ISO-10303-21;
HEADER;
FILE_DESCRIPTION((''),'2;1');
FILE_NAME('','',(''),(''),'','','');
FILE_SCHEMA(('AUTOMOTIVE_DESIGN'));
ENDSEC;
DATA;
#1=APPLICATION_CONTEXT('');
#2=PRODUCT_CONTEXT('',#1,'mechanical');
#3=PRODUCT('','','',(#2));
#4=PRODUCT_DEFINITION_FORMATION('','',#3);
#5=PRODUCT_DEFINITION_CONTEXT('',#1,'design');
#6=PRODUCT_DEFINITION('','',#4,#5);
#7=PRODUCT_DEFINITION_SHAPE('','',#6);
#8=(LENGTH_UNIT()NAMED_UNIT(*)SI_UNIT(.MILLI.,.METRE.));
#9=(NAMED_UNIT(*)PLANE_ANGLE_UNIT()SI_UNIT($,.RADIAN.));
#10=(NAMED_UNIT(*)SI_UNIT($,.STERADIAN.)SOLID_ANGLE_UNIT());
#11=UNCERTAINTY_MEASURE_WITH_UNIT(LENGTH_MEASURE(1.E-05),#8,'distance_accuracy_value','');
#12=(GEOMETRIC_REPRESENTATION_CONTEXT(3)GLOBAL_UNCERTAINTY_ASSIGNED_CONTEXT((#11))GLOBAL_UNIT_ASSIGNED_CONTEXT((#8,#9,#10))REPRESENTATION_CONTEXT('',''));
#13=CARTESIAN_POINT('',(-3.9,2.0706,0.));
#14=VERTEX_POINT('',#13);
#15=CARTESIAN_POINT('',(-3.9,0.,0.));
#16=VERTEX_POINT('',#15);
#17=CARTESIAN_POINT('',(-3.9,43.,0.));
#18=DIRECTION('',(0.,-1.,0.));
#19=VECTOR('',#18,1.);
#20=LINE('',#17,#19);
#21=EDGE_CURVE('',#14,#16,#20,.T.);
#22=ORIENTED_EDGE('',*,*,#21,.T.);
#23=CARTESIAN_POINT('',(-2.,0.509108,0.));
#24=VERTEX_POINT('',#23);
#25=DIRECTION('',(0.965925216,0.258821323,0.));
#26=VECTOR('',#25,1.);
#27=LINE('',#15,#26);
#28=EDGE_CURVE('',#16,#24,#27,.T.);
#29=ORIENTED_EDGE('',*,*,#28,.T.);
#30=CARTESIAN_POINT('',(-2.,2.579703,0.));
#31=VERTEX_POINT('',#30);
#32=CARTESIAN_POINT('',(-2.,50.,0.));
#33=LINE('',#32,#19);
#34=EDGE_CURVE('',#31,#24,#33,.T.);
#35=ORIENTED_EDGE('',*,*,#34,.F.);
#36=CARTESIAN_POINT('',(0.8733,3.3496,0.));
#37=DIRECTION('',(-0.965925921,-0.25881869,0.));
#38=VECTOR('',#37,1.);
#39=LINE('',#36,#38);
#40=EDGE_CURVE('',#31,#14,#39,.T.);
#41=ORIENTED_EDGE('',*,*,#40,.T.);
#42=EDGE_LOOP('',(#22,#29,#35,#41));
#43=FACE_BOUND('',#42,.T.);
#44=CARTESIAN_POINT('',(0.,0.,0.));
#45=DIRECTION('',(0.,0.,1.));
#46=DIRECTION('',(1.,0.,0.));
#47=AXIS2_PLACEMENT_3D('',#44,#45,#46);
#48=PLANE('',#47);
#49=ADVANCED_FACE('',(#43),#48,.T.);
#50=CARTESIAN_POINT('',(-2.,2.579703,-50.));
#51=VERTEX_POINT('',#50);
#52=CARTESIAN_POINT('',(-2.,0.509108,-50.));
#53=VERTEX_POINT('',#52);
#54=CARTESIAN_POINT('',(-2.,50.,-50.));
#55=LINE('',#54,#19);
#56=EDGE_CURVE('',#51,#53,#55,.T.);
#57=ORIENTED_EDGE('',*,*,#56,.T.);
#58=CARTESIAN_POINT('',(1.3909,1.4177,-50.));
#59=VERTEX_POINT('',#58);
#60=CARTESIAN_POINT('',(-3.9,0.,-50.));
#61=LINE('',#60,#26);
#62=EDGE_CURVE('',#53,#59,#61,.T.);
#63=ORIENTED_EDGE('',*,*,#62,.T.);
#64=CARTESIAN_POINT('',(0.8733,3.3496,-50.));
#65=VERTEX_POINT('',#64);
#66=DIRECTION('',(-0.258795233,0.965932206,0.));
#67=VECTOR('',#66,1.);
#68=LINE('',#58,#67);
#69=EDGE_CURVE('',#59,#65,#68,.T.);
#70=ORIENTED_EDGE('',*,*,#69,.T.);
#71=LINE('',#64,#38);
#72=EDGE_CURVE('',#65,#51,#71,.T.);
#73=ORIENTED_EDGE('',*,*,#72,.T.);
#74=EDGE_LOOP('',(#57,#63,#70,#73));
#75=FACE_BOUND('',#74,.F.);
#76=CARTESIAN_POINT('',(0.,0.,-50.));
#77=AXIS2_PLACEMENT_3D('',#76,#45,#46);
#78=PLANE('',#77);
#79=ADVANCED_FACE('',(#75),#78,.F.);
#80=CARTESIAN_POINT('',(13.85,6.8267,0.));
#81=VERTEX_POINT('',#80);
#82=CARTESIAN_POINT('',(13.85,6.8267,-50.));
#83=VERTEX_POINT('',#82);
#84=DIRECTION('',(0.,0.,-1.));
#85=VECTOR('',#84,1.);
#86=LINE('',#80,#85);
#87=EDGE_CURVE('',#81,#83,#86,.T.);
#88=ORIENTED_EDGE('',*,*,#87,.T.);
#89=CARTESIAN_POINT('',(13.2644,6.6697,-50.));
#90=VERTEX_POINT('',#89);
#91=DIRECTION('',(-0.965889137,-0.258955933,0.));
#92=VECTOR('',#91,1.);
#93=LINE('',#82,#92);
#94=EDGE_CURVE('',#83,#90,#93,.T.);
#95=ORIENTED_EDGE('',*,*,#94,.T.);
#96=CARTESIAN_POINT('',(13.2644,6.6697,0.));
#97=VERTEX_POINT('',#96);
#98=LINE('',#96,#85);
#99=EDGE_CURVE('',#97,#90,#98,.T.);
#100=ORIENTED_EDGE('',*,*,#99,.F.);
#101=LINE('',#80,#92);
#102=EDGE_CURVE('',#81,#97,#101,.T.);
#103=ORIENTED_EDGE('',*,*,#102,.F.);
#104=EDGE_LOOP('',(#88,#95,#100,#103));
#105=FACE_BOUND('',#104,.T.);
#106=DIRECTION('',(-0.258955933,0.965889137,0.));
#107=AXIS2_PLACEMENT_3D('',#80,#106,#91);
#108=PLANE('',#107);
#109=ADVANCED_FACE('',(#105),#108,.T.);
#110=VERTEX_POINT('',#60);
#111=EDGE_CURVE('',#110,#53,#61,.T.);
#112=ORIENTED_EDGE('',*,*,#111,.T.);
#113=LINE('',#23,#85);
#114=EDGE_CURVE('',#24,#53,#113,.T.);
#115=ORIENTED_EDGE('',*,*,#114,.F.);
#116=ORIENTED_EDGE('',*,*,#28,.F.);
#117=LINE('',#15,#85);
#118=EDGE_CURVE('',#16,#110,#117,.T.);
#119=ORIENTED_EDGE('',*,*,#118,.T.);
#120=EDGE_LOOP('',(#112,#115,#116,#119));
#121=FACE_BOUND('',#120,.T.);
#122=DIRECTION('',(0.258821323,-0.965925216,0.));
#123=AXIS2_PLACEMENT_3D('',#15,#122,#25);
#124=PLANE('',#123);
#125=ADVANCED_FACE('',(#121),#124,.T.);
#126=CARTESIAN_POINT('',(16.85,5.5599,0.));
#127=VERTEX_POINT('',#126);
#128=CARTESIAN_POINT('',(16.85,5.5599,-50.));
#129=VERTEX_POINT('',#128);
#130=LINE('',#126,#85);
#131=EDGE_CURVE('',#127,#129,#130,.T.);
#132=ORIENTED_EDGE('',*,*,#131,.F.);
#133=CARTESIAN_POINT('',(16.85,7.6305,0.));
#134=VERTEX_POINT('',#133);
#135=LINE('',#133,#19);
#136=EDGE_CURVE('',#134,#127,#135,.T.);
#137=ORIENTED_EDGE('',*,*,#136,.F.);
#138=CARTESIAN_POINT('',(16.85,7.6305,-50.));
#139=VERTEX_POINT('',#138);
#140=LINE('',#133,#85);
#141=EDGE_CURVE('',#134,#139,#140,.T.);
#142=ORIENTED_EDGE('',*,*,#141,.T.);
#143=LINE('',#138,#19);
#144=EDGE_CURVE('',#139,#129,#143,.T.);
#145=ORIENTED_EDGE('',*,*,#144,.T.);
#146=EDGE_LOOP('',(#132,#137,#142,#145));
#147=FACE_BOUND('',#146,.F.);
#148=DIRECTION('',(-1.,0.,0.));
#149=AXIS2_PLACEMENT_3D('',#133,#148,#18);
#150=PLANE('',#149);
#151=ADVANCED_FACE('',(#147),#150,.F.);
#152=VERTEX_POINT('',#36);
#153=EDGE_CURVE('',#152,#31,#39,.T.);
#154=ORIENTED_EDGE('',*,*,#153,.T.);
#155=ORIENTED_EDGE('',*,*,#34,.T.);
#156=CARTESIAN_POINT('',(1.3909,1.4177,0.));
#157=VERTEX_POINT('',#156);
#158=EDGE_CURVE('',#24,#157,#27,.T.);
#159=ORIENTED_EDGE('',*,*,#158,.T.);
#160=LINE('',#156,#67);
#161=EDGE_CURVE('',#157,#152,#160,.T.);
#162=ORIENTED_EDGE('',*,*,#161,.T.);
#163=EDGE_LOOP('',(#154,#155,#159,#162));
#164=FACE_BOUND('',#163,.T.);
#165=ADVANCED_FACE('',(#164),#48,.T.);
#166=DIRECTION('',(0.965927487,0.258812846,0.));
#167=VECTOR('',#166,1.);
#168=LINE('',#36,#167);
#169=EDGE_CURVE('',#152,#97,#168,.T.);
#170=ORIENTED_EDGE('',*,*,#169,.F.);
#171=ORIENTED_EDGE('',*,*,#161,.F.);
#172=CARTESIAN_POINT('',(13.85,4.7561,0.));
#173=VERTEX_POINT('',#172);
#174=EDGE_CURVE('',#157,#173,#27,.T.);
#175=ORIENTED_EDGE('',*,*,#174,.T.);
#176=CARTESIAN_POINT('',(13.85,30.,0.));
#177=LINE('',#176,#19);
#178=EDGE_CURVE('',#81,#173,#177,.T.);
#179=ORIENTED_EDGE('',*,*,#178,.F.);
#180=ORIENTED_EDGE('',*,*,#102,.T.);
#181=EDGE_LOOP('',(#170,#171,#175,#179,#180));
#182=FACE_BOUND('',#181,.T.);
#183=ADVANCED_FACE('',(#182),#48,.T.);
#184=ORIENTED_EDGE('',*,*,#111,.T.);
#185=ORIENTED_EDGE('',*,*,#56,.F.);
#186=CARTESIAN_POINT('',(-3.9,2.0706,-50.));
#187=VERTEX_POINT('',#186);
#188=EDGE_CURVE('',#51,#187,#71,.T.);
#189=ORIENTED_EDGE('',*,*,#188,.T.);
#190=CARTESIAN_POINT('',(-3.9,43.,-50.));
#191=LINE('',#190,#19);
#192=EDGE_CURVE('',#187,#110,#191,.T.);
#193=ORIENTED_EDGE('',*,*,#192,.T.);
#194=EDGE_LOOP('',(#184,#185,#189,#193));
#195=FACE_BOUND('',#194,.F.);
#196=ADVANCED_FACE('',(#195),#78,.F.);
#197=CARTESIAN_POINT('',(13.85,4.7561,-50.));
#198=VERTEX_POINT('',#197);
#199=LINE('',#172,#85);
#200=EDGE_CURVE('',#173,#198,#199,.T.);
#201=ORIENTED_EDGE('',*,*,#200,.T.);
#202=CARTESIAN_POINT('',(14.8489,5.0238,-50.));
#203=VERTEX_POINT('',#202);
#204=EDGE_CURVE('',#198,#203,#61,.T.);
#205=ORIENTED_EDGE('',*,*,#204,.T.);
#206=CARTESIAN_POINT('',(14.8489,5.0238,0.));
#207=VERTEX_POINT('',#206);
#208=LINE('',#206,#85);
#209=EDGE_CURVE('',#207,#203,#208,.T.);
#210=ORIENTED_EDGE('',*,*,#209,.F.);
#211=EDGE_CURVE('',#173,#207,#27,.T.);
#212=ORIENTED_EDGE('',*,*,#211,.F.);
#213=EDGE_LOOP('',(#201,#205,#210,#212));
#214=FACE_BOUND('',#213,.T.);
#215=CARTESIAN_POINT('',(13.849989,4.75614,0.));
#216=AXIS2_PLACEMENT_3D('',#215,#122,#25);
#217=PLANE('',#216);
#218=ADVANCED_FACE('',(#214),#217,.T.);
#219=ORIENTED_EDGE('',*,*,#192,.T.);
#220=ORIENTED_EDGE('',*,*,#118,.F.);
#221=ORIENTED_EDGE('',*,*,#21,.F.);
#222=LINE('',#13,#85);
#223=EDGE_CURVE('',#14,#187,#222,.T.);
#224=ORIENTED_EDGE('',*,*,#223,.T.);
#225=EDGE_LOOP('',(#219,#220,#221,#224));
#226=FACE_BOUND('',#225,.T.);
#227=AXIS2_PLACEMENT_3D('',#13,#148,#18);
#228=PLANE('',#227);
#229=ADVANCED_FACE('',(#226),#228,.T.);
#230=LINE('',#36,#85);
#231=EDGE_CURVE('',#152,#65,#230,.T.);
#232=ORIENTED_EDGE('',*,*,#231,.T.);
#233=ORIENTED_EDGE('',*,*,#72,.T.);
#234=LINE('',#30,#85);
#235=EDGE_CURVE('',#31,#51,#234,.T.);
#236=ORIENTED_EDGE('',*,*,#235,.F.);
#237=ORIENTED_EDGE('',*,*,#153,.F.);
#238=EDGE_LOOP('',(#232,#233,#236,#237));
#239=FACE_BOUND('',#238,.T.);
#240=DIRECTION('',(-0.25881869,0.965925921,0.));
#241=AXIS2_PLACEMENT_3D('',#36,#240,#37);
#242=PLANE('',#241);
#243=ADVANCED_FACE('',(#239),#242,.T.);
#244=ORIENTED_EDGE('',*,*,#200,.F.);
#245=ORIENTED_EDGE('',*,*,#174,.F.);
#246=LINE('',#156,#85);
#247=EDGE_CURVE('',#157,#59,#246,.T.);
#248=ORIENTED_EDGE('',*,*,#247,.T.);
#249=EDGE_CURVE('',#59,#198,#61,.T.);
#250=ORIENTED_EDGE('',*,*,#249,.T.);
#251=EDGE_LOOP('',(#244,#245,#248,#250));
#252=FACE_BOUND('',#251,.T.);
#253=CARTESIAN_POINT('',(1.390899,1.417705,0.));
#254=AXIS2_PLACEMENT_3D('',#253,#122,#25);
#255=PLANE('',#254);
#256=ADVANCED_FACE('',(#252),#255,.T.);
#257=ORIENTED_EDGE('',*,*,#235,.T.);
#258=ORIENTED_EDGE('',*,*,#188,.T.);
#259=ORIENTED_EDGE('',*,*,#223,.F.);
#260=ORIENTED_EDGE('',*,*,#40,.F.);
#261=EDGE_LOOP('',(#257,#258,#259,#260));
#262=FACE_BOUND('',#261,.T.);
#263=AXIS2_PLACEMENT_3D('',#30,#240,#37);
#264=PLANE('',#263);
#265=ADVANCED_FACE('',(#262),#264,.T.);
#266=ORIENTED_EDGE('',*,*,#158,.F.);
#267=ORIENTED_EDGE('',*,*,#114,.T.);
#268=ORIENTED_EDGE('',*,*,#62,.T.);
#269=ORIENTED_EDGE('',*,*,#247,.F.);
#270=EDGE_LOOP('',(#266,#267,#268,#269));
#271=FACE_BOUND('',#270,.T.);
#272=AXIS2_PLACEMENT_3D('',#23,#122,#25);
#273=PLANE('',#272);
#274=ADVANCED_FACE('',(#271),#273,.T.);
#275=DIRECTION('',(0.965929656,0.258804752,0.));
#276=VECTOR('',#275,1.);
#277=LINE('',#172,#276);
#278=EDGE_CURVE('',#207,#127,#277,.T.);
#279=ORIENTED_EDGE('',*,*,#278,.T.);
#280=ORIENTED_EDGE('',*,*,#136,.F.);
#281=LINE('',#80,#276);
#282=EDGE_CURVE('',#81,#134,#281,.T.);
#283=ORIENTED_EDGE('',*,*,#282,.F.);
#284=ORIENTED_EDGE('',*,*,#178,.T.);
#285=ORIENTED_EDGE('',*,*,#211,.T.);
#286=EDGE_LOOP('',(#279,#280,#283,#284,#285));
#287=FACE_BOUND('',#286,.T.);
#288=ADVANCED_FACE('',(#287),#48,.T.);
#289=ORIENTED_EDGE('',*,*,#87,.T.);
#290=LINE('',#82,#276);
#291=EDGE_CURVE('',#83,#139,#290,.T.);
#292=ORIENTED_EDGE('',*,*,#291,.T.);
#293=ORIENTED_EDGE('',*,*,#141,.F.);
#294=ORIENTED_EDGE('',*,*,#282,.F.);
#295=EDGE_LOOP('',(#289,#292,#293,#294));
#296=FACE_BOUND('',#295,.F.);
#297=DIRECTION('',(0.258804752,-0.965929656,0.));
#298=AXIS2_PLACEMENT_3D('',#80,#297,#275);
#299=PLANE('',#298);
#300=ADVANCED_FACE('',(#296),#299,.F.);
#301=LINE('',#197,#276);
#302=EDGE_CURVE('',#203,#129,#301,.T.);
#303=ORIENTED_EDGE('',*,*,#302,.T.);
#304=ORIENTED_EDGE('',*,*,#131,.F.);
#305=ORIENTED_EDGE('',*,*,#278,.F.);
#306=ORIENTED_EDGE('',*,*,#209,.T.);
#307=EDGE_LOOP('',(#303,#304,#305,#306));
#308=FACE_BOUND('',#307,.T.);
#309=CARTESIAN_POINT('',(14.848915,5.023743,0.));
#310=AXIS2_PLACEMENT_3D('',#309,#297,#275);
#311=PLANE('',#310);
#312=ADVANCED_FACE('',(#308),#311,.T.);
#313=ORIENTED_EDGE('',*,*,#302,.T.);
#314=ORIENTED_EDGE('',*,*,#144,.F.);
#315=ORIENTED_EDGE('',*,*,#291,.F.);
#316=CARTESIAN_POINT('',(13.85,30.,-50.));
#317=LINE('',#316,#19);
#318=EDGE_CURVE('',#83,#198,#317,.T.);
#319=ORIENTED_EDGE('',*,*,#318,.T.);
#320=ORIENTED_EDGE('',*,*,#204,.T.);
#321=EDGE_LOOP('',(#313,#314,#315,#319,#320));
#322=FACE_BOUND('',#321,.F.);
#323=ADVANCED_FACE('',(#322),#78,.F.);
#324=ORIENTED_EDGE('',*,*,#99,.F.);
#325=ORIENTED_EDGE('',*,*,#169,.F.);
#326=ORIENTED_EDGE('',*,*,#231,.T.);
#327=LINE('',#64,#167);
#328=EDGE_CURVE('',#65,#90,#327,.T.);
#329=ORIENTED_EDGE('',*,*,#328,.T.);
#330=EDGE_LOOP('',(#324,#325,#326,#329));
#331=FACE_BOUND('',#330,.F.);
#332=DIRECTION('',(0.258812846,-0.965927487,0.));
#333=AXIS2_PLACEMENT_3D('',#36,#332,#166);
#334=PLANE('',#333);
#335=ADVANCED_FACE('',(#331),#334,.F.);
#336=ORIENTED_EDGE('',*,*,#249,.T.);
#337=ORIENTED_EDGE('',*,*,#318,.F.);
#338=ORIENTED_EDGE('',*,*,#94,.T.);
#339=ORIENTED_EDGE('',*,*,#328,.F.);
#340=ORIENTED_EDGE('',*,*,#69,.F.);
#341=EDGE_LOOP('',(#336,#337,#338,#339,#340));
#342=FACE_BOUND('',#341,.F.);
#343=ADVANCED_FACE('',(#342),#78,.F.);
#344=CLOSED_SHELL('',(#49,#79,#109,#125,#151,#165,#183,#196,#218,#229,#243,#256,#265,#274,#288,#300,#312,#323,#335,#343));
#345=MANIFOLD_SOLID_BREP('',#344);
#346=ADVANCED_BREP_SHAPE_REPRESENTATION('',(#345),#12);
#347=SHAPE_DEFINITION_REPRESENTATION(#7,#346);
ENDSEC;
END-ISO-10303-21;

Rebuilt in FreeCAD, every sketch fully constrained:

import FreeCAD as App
import Part
import Sketcher
Q = App.Units.Quantity


def add_polygon(sketch, points):
    """Adds a closed chain of lines whose ends are joined by coincident constraints."""
    first, n = sketch.GeometryCount, len(points)
    for a, b in zip(points, points[1:] + points[:1]):
        sketch.addGeometry(Part.LineSegment(App.Vector(*a, 0), App.Vector(*b, 0)), False)
    for i in range(n):
        sketch.addConstraint(Sketcher.Constraint("Coincident", first + i, 2, first + (i + 1) % n, 1))

doc = App.newDocument("Part")
body = doc.addObject("PartDesign::Body", "Body")

# Sketch on XY plane
sketch1 = body.newObject("Sketcher::SketchObject", "Sketch")
sketch1.AttachmentSupport = (doc.getObject("XY_Plane"), [""])
sketch1.MapMode = "FlatFace"
add_polygon(sketch1, [(0.9, 3.3), (-3.9, 2.1), (-3.9, 0), (14.8, 5), (16.9, 5.6), (16.9, 7.6), (13.8, 6.8), (13.3, 6.7)])  # lines 0-7
sketch1.addConstraint(Sketcher.Constraint("Vertical", 1))
sketch1.addConstraint(Sketcher.Constraint("Vertical", 4))
sketch1.addConstraint(Sketcher.Constraint("PointOnObject", 1, 2, -1))
sketch1.addConstraint(Sketcher.Constraint("Parallel", 0, 2))
sketch1.addConstraint(Sketcher.Constraint("Parallel", 2, 3))
sketch1.addConstraint(Sketcher.Constraint("Parallel", 3, 5))
sketch1.addConstraint(Sketcher.Constraint("Parallel", 5, 6))
sketch1.addConstraint(Sketcher.Constraint("Parallel", 6, 7))
sketch1.addConstraint(Sketcher.Constraint("Angle", 2, Q("15.0001 deg")))
sketch1.addConstraint(Sketcher.Constraint("DistanceX", 5, 2, 4, 2, Q("3 mm")))
sketch1.addConstraint(Sketcher.Constraint("DistanceX", 0, 2, -1, 1, Q("3.9 mm")))
sketch1.addConstraint(Sketcher.Constraint("DistanceX", -1, 1, 3, 2, Q("16.85 mm")))
sketch1.addConstraint(Sketcher.Constraint("DistanceY", 7, 2, 6, 2, Q("3.32 mm")))
sketch1.addConstraint(Sketcher.Constraint("DistanceY", 1, 2, 1, 1, Q("2.0706 mm")))
sketch1.addConstraint(Sketcher.Constraint("DistanceX", -1, 1, 2, 2, Q("14.849 mm")))
sketch1.addConstraint(Sketcher.Constraint("DistanceY", 6, 2, 5, 2, Q("0.157 mm")))
pad1 = body.newObject("PartDesign::Pad", "Pad")
pad1.Profile = sketch1
pad1.Length = 50
pad1.Reversed = True

doc.recompute()
